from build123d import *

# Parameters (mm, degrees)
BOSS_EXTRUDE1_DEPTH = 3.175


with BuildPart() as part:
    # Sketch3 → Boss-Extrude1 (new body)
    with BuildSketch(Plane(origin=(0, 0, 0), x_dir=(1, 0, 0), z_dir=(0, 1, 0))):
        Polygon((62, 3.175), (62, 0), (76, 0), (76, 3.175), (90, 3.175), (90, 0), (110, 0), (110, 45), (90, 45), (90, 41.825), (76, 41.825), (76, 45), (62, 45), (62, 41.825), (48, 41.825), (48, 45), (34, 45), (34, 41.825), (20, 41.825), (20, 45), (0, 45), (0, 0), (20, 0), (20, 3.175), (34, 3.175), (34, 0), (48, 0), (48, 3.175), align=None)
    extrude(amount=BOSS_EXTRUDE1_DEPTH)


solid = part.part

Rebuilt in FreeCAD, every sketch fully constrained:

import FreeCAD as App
import Part
import Sketcher

V = App.Vector
Q = App.Units.Quantity


def add_polygon(sketch, points):
    """Adds a closed chain of lines whose ends are joined by coincident constraints."""
    first, n = sketch.GeometryCount, len(points)
    for a, b in zip(points, points[1:] + points[:1]):
        sketch.addGeometry(Part.LineSegment(App.Vector(*a, 0), App.Vector(*b, 0)), False)
    for i in range(n):
        sketch.addConstraint(Sketcher.Constraint("Coincident", first + i, 2, first + (i + 1) % n, 1))

doc = App.newDocument("Part")
body = doc.addObject("PartDesign::Body", "Body")

sketch1 = body.newObject("Sketcher::SketchObject", "Sketch")
sketch1.AttachmentSupport = (doc.getObject("XZ_Plane"), [""])
sketch1.MapMode = "FlatFace"
add_polygon(sketch1, [(62, -3.2), (62, 0), (76, 0), (76, -3.2), (90, -3.2), (90, 0), (110, 0), (110, -45), (90, -45), (90, -41.8), (76, -41.8), (76, -45), (62, -45), (62, -41.8), (48, -41.8), (48, -45), (34, -45), (34, -41.8), (20, -41.8), (20, -45), (0, -45), (0, 0), (20, 0), (20, -3.2), (34, -3.2), (34, 0), (48, 0), (48, -3.2)])
sketch1.addConstraint([
    Sketcher.Constraint("Vertical", 0),
    Sketcher.Constraint("Horizontal", 1),
    Sketcher.Constraint("Vertical", 2),
    Sketcher.Constraint("Horizontal", 3),
    Sketcher.Constraint("Vertical", 4),
    Sketcher.Constraint("Horizontal", 5),
    Sketcher.Constraint("Vertical", 6),
    Sketcher.Constraint("Horizontal", 7),
    Sketcher.Constraint("Vertical", 8),
    Sketcher.Constraint("Horizontal", 9),
    Sketcher.Constraint("Vertical", 10),
    Sketcher.Constraint("Horizontal", 11),
    Sketcher.Constraint("Vertical", 12),
    Sketcher.Constraint("Horizontal", 13),
    Sketcher.Constraint("Vertical", 14),
    Sketcher.Constraint("Horizontal", 15),
    Sketcher.Constraint("Vertical", 16),
    Sketcher.Constraint("Horizontal", 17),
    Sketcher.Constraint("Vertical", 18),
    Sketcher.Constraint("Horizontal", 19),
    Sketcher.Constraint("Vertical", 20),
    Sketcher.Constraint("Horizontal", 21),
    Sketcher.Constraint("Vertical", 22),
    Sketcher.Constraint("Horizontal", 23),
    Sketcher.Constraint("Vertical", 24),
    Sketcher.Constraint("Horizontal", 25),
    Sketcher.Constraint("Vertical", 26),
    Sketcher.Constraint("Horizontal", 27),
    Sketcher.Constraint("Coincident", 20, 2, -1, 1),
    Sketcher.Constraint("PointOnObject", 0, 2, -1),
    Sketcher.Constraint("PointOnObject", 4, 2, -1),
    Sketcher.Constraint("PointOnObject", 24, 2, -1),
    Sketcher.Constraint("Horizontal", 7, 2, 10, 2),
    Sketcher.Constraint("Horizontal", 9, 2, 12, 2),
    Sketcher.Constraint("Horizontal", 11, 2, 14, 2),
    Sketcher.Constraint("Horizontal", 13, 2, 16, 2),
    Sketcher.Constraint("Horizontal", 15, 2, 18, 2),
    Sketcher.Constraint("Horizontal", 3, 2, 22, 2),
    Sketcher.Constraint("Horizontal", 23, 2, 26, 2),
    Sketcher.Constraint("Vertical", 4, 2, 7, 2),
    Sketcher.Constraint("Vertical", 2, 2, 9, 2),
    Sketcher.Constraint("Vertical", 0, 2, 11, 2),
    Sketcher.Constraint("Vertical", 18, 2, 21, 2),
    Sketcher.Constraint("Vertical", 16, 2, 23, 2),
    Sketcher.Constraint("Vertical", 14, 2, 25, 2),
    Sketcher.Constraint("Equal", 1, 3),
    Sketcher.Constraint("Equal", 11, 13),
    Sketcher.Constraint("Equal", 13, 15),
    Sketcher.Constraint("Equal", 15, 17),
    Sketcher.Constraint("Equal", 7, 19),
    Sketcher.Constraint("Equal", 4, 8),
    Sketcher.Constraint("DistanceX", 1, 1, 1, 2, Q("14 mm")),
    Sketcher.Constraint("DistanceX", 5, 1, 5, 2, Q("20 mm")),
    Sketcher.Constraint("DistanceY", 6, 2, 6, 1, Q("45 mm")),
    Sketcher.Constraint("DistanceY", 0, 1, 0, 2, Q("3.175 mm")),
])
pad1 = body.newObject("PartDesign::Pad", "Pad")
pad1.Profile = sketch1
pad1.Length = 3.175
pad1.Reversed = True

doc.recompute()
